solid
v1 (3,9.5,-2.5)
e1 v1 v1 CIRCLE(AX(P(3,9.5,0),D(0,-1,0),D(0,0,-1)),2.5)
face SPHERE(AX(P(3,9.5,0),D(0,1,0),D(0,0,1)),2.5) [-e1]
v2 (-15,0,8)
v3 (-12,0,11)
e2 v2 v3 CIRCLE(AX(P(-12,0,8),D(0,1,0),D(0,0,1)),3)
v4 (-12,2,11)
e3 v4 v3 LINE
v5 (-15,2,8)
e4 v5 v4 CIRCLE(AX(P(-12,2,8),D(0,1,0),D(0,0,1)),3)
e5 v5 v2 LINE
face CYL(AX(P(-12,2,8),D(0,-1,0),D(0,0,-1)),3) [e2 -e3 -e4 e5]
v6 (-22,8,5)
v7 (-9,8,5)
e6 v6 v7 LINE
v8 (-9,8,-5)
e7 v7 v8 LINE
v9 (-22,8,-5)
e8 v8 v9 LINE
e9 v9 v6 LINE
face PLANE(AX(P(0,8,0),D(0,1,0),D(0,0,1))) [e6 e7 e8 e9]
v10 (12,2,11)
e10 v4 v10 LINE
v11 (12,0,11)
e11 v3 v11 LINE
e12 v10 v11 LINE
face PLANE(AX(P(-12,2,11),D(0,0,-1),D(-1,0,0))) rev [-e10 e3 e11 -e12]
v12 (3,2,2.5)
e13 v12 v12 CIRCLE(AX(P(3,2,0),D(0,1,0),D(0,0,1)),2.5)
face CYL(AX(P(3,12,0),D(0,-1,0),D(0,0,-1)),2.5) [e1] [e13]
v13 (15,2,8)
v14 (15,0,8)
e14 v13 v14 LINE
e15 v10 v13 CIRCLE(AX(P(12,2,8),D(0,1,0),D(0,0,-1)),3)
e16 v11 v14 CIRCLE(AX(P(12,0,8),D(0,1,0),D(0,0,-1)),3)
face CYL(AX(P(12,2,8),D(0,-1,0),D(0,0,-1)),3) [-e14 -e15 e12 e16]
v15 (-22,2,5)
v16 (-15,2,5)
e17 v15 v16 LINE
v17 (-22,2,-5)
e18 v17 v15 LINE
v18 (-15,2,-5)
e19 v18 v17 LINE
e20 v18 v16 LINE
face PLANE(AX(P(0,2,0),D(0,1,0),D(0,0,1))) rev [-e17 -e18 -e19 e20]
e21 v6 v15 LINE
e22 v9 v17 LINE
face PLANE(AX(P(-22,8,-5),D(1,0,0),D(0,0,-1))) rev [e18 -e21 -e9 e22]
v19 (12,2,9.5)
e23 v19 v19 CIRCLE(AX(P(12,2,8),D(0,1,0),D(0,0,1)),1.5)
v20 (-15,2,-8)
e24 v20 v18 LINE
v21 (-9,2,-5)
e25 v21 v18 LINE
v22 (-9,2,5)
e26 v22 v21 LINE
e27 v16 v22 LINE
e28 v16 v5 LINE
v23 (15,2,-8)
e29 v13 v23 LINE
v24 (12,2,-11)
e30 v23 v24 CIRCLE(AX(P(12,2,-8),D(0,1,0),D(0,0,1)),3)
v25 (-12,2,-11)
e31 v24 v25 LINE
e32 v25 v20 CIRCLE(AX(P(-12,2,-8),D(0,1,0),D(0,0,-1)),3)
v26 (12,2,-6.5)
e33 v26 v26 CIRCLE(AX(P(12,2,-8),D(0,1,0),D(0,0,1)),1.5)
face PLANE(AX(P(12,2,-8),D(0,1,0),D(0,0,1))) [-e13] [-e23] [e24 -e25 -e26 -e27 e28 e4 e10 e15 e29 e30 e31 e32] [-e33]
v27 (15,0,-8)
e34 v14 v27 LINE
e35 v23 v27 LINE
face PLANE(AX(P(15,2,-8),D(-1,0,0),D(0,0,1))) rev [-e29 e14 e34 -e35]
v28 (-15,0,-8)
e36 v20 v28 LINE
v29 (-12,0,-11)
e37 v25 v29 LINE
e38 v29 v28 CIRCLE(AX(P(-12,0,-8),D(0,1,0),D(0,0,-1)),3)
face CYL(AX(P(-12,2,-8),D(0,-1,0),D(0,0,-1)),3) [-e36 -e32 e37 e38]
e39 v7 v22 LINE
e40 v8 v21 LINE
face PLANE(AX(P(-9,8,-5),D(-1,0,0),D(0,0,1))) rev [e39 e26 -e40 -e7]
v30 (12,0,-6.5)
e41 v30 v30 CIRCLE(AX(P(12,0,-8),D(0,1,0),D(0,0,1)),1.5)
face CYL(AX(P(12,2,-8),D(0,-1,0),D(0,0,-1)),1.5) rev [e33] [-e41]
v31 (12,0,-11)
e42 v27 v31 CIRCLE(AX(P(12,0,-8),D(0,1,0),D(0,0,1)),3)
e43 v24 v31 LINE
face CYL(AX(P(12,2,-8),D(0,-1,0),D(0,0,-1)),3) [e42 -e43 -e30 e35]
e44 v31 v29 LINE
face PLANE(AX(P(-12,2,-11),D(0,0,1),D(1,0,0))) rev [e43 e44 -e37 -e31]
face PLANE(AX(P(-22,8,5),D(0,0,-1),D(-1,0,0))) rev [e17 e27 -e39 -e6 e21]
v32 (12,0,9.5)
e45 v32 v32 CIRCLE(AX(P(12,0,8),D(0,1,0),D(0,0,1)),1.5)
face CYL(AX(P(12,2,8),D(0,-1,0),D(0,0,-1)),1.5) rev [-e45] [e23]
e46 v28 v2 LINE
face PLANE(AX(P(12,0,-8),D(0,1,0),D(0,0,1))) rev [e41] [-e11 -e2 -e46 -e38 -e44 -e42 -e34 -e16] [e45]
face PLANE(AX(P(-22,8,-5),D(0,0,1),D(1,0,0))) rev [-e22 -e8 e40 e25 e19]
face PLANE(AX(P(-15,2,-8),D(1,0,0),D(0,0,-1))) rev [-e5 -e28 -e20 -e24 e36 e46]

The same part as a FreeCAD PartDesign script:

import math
import FreeCAD as App
import Part
import Sketcher


def edges_at(feature, points):
    """Names of the edges that pass closest to the given points."""
    edges = feature.Shape.Edges
    near = lambda p: min(range(len(edges)), key=lambda i: edges[i].distToShape(Part.Vertex(*p))[0])
    return sorted({f"Edge{near(p) + 1}" for p in points})

doc = App.newDocument("Part")
body = doc.addObject("PartDesign::Body", "Body")

# Sketch on XZ plane
sketch1 = body.newObject("Sketcher::SketchObject", "Sketch")
sketch1.AttachmentSupport = (doc.getObject("XZ_Plane"), [""])
sketch1.MapMode = "FlatFace"
sketch1.addGeometry(Part.LineSegment(App.Vector(12, -11, 0), App.Vector(-12, -11, 0)), False)
sketch1.addGeometry(Part.ArcOfCircle(Part.Circle(App.Vector(-12, -8, 0), App.Vector(0, 0, 1), 3), math.radians(180), math.radians(270)), False)
sketch1.addGeometry(Part.LineSegment(App.Vector(-15, -8, 0), App.Vector(-15, 8, 0)), False)
sketch1.addGeometry(Part.ArcOfCircle(Part.Circle(App.Vector(-12, 8, 0), App.Vector(0, 0, 1), 3), math.radians(90), math.radians(180)), False)
sketch1.addGeometry(Part.LineSegment(App.Vector(-12, 11, 0), App.Vector(12, 11, 0)), False)
sketch1.addGeometry(Part.ArcOfCircle(Part.Circle(App.Vector(12, 8, 0), App.Vector(0, 0, 1), 3), math.radians(0), math.radians(90)), False)
sketch1.addGeometry(Part.LineSegment(App.Vector(15, 8, 0), App.Vector(15, -8, 0)), False)
sketch1.addGeometry(Part.ArcOfCircle(Part.Circle(App.Vector(12, -8, 0), App.Vector(0, 0, 1), 3), math.radians(-90), math.radians(0)), False)
sketch1.addGeometry(Part.Circle(App.Vector(12, 8, 0), App.Vector(0, 0, 1), 1.5), False)
sketch1.addGeometry(Part.Circle(App.Vector(12, -8, 0), App.Vector(0, 0, 1), 1.5), False)
sketch1.addConstraint(Sketcher.Constraint("Tangent", 0, 2, 1, 2))
sketch1.addConstraint(Sketcher.Constraint("Tangent", 1, 1, 2, 1))
sketch1.addConstraint(Sketcher.Constraint("Tangent", 2, 2, 3, 2))
sketch1.addConstraint(Sketcher.Constraint("Tangent", 3, 1, 4, 1))
sketch1.addConstraint(Sketcher.Constraint("Tangent", 4, 2, 5, 2))
sketch1.addConstraint(Sketcher.Constraint("Tangent", 5, 1, 6, 1))
sketch1.addConstraint(Sketcher.Constraint("Tangent", 6, 2, 7, 2))
sketch1.addConstraint(Sketcher.Constraint("Tangent", 7, 1, 0, 1))
sketch1.addConstraint(Sketcher.Constraint("Horizontal", 0))
sketch1.addConstraint(Sketcher.Constraint("Vertical", 2))
sketch1.addConstraint(Sketcher.Constraint("Horizontal", 4))
sketch1.addConstraint(Sketcher.Constraint("Vertical", 6))
sketch1.addConstraint(Sketcher.Constraint("Coincident", 8, 3, 5, 3))
sketch1.addConstraint(Sketcher.Constraint("Coincident", 9, 3, 7, 3))
sketch1.addConstraint(Sketcher.Constraint("Equal", 1, 3))
sketch1.addConstraint(Sketcher.Constraint("Equal", 3, 5))
sketch1.addConstraint(Sketcher.Constraint("Equal", 5, 7))
sketch1.addConstraint(Sketcher.Constraint("Equal", 8, 9))
sketch1.addConstraint(Sketcher.Constraint("Symmetric", 1, 3, 5, 3, -1, 1))
sketch1.addConstraint(Sketcher.Constraint("Diameter", 8, 3.0))
sketch1.addConstraint(Sketcher.Constraint("Radius", 1, 3.0))
sketch1.addConstraint(Sketcher.Constraint("DistanceX", 0, 2, 0, 1, 24.0))
sketch1.addConstraint(Sketcher.Constraint("DistanceY", 2, 1, 2, 2, 16.0))
pad1 = body.newObject("PartDesign::Pad", "Pad")
pad1.Profile = sketch1
pad1.Length = 2
pad1.Reversed = True

# Sketch on XZ plane
sketch2 = body.newObject("Sketcher::SketchObject", "Sketch001")
sketch2.AttachmentSupport = (doc.getObject("XZ_Plane"), [""])
sketch2.MapMode = "FlatFace"
sketch2.AttachmentOffset = App.Placement(App.Vector(0, 0, -2), App.Rotation())
sketch2.addGeometry(Part.LineSegment(App.Vector(-22, -5, 0), App.Vector(-22, 5, 0)), False)
sketch2.addGeometry(Part.LineSegment(App.Vector(-22, 5, 0), App.Vector(-9, 5, 0)), False)
sketch2.addGeometry(Part.LineSegment(App.Vector(-9, 5, 0), App.Vector(-9, -5, 0)), False)
sketch2.addGeometry(Part.LineSegment(App.Vector(-9, -5, 0), App.Vector(-22, -5, 0)), False)
sketch2.addConstraint(Sketcher.Constraint("Coincident", 0, 2, 1, 1))
sketch2.addConstraint(Sketcher.Constraint("Coincident", 1, 2, 2, 1))
sketch2.addConstraint(Sketcher.Constraint("Coincident", 2, 2, 3, 1))
sketch2.addConstraint(Sketcher.Constraint("Coincident", 3, 2, 0, 1))
sketch2.addConstraint(Sketcher.Constraint("Vertical", 0))
sketch2.addConstraint(Sketcher.Constraint("Horizontal", 1))
sketch2.addConstraint(Sketcher.Constraint("Vertical", 2))
sketch2.addConstraint(Sketcher.Constraint("Horizontal", 3))
sketch2.addConstraint(Sketcher.Constraint("DistanceX", 1, 1, 1, 2, 13.0))
sketch2.addConstraint(Sketcher.Constraint("DistanceY", 0, 1, 0, 2, 10.0))
sketch2.addConstraint(Sketcher.Constraint("DistanceX", 0, 2, -1, 1, 22.0))
sketch2.addConstraint(Sketcher.Constraint("DistanceY", -1, 1, 0, 2, 5.0))
pad2 = body.newObject("PartDesign::Pad", "Pad001")
pad2.Profile = sketch2
pad2.Length = 6
pad2.Reversed = True

# Sketch on XZ plane
sketch3 = body.newObject("Sketcher::SketchObject", "Sketch002")
sketch3.AttachmentSupport = (doc.getObject("XZ_Plane"), [""])
sketch3.MapMode = "FlatFace"
sketch3.AttachmentOffset = App.Placement(App.Vector(0, 0, -2), App.Rotation())
sketch3.addGeometry(Part.Circle(App.Vector(3, 0, 0), App.Vector(0, 0, 1), 2.5), False)
sketch3.addConstraint(Sketcher.Constraint("PointOnObject", 0, 3, -1))
sketch3.addConstraint(Sketcher.Constraint("Diameter", 0, 5.0))
sketch3.addConstraint(Sketcher.Constraint("DistanceX", -1, 1, 0, 3, 3.0))
pad3 = body.newObject("PartDesign::Pad", "Pad002")
pad3.Profile = sketch3
pad3.Length = 10
pad3.Reversed = True
doc.recompute()

fillet = body.newObject("PartDesign::Fillet", "Fillet")
fillet.Base = (pad3, edges_at(pad3, [(3, 12, -2.5)]))
fillet.Radius = 2.5

doc.recompute()
